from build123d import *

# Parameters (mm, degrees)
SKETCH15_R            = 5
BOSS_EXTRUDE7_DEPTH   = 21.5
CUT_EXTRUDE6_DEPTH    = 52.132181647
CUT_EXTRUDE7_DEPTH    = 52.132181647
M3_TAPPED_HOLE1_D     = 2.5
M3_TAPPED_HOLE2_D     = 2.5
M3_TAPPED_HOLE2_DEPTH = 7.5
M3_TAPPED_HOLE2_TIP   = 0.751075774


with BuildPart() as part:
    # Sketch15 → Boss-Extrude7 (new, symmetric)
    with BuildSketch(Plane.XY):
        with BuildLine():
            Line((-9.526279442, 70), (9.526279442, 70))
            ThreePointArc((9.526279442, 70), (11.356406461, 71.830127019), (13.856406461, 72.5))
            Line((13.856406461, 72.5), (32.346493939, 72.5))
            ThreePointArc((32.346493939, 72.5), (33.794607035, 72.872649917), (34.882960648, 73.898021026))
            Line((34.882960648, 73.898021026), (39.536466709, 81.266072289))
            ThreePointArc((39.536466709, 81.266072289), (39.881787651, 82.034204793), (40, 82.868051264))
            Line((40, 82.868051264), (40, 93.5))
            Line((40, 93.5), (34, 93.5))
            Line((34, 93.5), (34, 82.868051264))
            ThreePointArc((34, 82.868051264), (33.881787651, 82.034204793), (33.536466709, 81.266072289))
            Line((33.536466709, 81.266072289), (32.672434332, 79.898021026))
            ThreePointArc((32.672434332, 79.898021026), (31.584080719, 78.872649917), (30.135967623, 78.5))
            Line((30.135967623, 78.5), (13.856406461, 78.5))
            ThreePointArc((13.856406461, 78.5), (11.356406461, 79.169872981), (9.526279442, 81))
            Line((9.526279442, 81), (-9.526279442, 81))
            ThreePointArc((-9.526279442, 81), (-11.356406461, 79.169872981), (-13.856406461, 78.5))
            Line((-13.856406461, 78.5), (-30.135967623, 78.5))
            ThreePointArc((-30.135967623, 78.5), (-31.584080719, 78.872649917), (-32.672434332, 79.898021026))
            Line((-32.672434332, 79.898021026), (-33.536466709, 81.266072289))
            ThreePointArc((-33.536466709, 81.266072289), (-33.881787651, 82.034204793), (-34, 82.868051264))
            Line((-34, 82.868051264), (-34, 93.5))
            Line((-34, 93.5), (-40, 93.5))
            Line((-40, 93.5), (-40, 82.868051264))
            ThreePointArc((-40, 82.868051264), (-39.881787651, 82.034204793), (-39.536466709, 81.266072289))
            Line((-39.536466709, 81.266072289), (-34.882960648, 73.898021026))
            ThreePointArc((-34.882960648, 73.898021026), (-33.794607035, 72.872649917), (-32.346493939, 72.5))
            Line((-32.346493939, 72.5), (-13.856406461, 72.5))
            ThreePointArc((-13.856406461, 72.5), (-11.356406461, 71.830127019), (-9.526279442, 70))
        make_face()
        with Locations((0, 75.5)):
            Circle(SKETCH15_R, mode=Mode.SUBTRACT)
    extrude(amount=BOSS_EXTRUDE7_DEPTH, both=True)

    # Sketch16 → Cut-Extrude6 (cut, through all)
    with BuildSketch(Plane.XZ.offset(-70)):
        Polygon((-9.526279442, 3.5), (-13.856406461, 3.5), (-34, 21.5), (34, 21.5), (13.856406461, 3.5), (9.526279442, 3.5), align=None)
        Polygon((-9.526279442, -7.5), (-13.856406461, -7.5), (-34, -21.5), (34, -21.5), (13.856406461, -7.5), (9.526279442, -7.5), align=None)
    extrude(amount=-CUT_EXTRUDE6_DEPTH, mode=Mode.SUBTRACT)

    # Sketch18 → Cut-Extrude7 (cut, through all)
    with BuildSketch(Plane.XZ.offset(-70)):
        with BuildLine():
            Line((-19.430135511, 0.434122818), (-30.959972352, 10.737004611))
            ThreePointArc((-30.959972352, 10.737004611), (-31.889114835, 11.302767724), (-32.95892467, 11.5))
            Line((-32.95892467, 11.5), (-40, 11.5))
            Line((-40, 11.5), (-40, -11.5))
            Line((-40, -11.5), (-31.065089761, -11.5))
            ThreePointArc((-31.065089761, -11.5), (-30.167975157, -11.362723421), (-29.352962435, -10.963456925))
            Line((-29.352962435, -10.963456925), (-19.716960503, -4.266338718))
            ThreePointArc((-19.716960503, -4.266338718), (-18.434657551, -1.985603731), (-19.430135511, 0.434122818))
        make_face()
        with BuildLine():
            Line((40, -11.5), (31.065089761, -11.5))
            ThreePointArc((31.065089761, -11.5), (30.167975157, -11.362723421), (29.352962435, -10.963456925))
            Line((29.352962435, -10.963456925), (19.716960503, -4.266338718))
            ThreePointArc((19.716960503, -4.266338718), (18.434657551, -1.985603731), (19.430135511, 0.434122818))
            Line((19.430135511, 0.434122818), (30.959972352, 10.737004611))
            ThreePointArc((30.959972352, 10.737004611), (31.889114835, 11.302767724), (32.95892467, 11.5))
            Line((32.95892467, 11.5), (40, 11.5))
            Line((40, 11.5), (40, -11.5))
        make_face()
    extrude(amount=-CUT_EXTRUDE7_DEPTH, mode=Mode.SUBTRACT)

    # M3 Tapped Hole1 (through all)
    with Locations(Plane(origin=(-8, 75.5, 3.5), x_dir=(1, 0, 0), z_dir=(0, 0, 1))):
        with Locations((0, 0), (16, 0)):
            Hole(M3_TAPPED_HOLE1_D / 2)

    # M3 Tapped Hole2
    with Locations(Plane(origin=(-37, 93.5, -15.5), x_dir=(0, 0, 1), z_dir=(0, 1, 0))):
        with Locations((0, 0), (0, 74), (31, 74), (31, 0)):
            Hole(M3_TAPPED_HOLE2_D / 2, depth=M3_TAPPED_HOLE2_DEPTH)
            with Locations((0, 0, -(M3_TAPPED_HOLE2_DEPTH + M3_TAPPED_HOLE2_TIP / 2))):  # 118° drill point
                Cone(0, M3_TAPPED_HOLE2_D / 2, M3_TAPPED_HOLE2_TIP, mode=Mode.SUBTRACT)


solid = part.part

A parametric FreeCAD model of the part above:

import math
import FreeCAD as App
import Part
import Sketcher
Q = App.Units.Quantity

doc = App.newDocument("Part")
params = doc.addObject("Spreadsheet::Sheet", "Params")
for row, (alias, value) in enumerate([
    ("sketch1_diameter", "10 mm"),
    ("sketch1_radius", "3 mm"),
    ("sketch1_width", "6 mm"),
    ("pad1_length", "43 mm"),
    ("sketch2_width", "68 mm"),
    ("sketch3_radius", "3 mm"),
    ("sketch3_height", "23 mm"),
    ("sketch4_diameter", "2.5 mm"),
    ("hole_diameter", "2.5 mm"),
    ("sketch5_diameter", "2.5 mm"),
    ("hole2_diameter", "2.5 mm"),
    ("hole2_depth", "7.5 mm"),
], start=1):
    params.set(f"A{row}", alias)
    params.set(f"B{row}", "=" + value)
    params.setAlias(f"B{row}", alias)

body = doc.addObject("PartDesign::Body", "Body")

# Sketch on XY plane
sketch1 = doc.addObject("Sketcher::SketchObject", "Sketch")
body.addObject(sketch1)
sketch1.AttachmentSupport = (doc.XY_Plane, [""])
sketch1.MapMode = "FlatFace"
sketch1.addGeometry([
    Part.LineSegment(App.Vector(-9.526279, 70, 0), App.Vector(9.526279, 70, 0)),  # 0
    Part.ArcOfCircle(Part.Circle(App.Vector(13.856406, 67.5, 0), App.Vector(0, 0, 1), 5), math.radians(90), math.radians(150)),  # 1
    Part.LineSegment(App.Vector(13.856406, 72.5, 0), App.Vector(32.346494, 72.5, 0)),  # 2
    Part.ArcOfCircle(Part.Circle(App.Vector(32.346494, 75.5, 0), App.Vector(0, 0, 1), 3), math.radians(-90), math.radians(-32.275644)),  # 3
    Part.LineSegment(App.Vector(34.882961, 73.898021, 0), App.Vector(39.536467, 81.266072, 0)),  # 4
    Part.ArcOfCircle(Part.Circle(App.Vector(37, 82.868051, 0), App.Vector(0, 0, 1), 3), math.radians(-32.275644), math.radians(0)),  # 5
    Part.LineSegment(App.Vector(40, 82.868051, 0), App.Vector(40, 93.5, 0)),  # 6
    Part.LineSegment(App.Vector(40, 93.5, 0), App.Vector(34, 93.5, 0)),  # 7
    Part.LineSegment(App.Vector(34, 93.5, 0), App.Vector(34, 82.868051, 0)),  # 8
    Part.ArcOfCircle(Part.Circle(App.Vector(31, 82.868051, 0), App.Vector(0, 0, 1), 3), math.radians(-32.275644), math.radians(0)),  # 9
    Part.LineSegment(App.Vector(33.536467, 81.266072, 0), App.Vector(32.672434, 79.898021, 0)),  # 10
    Part.ArcOfCircle(Part.Circle(App.Vector(30.135968, 81.5, 0), App.Vector(0, 0, 1), 3), math.radians(-90), math.radians(-32.275644)),  # 11
    Part.LineSegment(App.Vector(30.135968, 78.5, 0), App.Vector(13.856406, 78.5, 0)),  # 12
    Part.ArcOfCircle(Part.Circle(App.Vector(13.856406, 83.5, 0), App.Vector(0, 0, 1), 5), math.radians(-150), math.radians(-90)),  # 13
    Part.LineSegment(App.Vector(9.526279, 81, 0), App.Vector(-9.526279, 81, 0)),  # 14
    Part.ArcOfCircle(Part.Circle(App.Vector(-13.856406, 83.5, 0), App.Vector(0, 0, 1), 5), math.radians(-90), math.radians(-30)),  # 15
    Part.LineSegment(App.Vector(-13.856406, 78.5, 0), App.Vector(-30.135968, 78.5, 0)),  # 16
    Part.ArcOfCircle(Part.Circle(App.Vector(-30.135968, 81.5, 0), App.Vector(0, 0, 1), 3), math.radians(-147.724356), math.radians(-90)),  # 17
    Part.LineSegment(App.Vector(-32.672434, 79.898021, 0), App.Vector(-33.536467, 81.266072, 0)),  # 18
    Part.ArcOfCircle(Part.Circle(App.Vector(-31, 82.868051, 0), App.Vector(0, 0, 1), 3), math.radians(180), math.radians(212.275644)),  # 19
    Part.LineSegment(App.Vector(-34, 82.868051, 0), App.Vector(-34, 93.5, 0)),  # 20
    Part.LineSegment(App.Vector(-34, 93.5, 0), App.Vector(-40, 93.5, 0)),  # 21
    Part.LineSegment(App.Vector(-40, 93.5, 0), App.Vector(-40, 82.868051, 0)),  # 22
    Part.ArcOfCircle(Part.Circle(App.Vector(-37, 82.868051, 0), App.Vector(0, 0, 1), 3), math.radians(180), math.radians(212.275644)),  # 23
    Part.LineSegment(App.Vector(-39.536467, 81.266072, 0), App.Vector(-34.882961, 73.898021, 0)),  # 24
    Part.ArcOfCircle(Part.Circle(App.Vector(-32.346494, 75.5, 0), App.Vector(0, 0, 1), 3), math.radians(-147.724356), math.radians(-90)),  # 25
    Part.LineSegment(App.Vector(-32.346494, 72.5, 0), App.Vector(-13.856406, 72.5, 0)),  # 26
    Part.ArcOfCircle(Part.Circle(App.Vector(-13.856406, 67.5, 0), App.Vector(0, 0, 1), 5), math.radians(30), math.radians(90)),  # 27
    Part.Circle(App.Vector(0, 75.5, 0), App.Vector(0, 0, 1), 5),  # 28
], False)
sketch1.addConstraint([
    Sketcher.Constraint("Coincident", 0, 2, 1, 2),
    Sketcher.Constraint("Tangent", 1, 1, 2, 1),
    Sketcher.Constraint("Tangent", 2, 2, 3, 1),
    Sketcher.Constraint("Tangent", 3, 2, 4, 1),
    Sketcher.Constraint("Tangent", 4, 2, 5, 1),
    Sketcher.Constraint("Tangent", 5, 2, 6, 1),
    Sketcher.Constraint("Coincident", 6, 2, 7, 1),
    Sketcher.Constraint("Coincident", 7, 2, 8, 1),
    Sketcher.Constraint("Tangent", 8, 2, 9, 2),
    Sketcher.Constraint("Tangent", 9, 1, 10, 1),
    Sketcher.Constraint("Tangent", 10, 2, 11, 2),
    Sketcher.Constraint("Tangent", 11, 1, 12, 1),
    Sketcher.Constraint("Tangent", 12, 2, 13, 2),
    Sketcher.Constraint("Coincident", 13, 1, 14, 1),
    Sketcher.Constraint("Coincident", 14, 2, 15, 2),
    Sketcher.Constraint("Tangent", 15, 1, 16, 1),
    Sketcher.Constraint("Tangent", 16, 2, 17, 2),
    Sketcher.Constraint("Tangent", 17, 1, 18, 1),
    Sketcher.Constraint("Tangent", 18, 2, 19, 2),
    Sketcher.Constraint("Tangent", 19, 1, 20, 1),
    Sketcher.Constraint("Coincident", 20, 2, 21, 1),
    Sketcher.Constraint("Coincident", 21, 2, 22, 1),
    Sketcher.Constraint("Tangent", 22, 2, 23, 1),
    Sketcher.Constraint("Tangent", 23, 2, 24, 1),
    Sketcher.Constraint("Tangent", 24, 2, 25, 1),
    Sketcher.Constraint("Tangent", 25, 2, 26, 1),
    Sketcher.Constraint("Tangent", 26, 2, 27, 2),
    Sketcher.Constraint("Coincident", 27, 1, 0, 1),
    Sketcher.Constraint("Horizontal", 0),
    Sketcher.Constraint("Horizontal", 2),
    Sketcher.Constraint("Vertical", 6),
    Sketcher.Constraint("Horizontal", 7),
    Sketcher.Constraint("Vertical", 8),
    Sketcher.Constraint("Horizontal", 12),
    Sketcher.Constraint("Horizontal", 14),
    Sketcher.Constraint("Horizontal", 16),
    Sketcher.Constraint("Vertical", 20),
    Sketcher.Constraint("Horizontal", 21),
    Sketcher.Constraint("Vertical", 22),
    Sketcher.Constraint("Horizontal", 26),
    Sketcher.Constraint("Equal", 3, 5),
    Sketcher.Constraint("Equal", 5, 9),
    Sketcher.Constraint("Equal", 9, 11),
    Sketcher.Constraint("Equal", 1, 13),
    Sketcher.Constraint("Equal", 13, 15),
    Sketcher.Constraint("Equal", 11, 17),
    Sketcher.Constraint("Equal", 17, 19),
    Sketcher.Constraint("Equal", 19, 23),
    Sketcher.Constraint("Equal", 23, 25),
    Sketcher.Constraint("Equal", 15, 27),
    Sketcher.Constraint("Equal", 27, 28),
    Sketcher.Constraint("Symmetric", 13, 3, 15, 3, -2),
    Sketcher.Constraint("Symmetric", 9, 3, 19, 3, -2),
    Sketcher.Constraint("Symmetric", 5, 3, 23, 3, -2),
    Sketcher.Constraint("Symmetric", 3, 3, 25, 3, -2),
    Sketcher.Constraint("PointOnObject", 28, 3, -2),
    Sketcher.Constraint("Parallel", 4, 10),
    Sketcher.Constraint("Parallel", 18, 24),
    Sketcher.Constraint("Horizontal", 5, 3, 9, 3),
    Sketcher.Constraint("Horizontal", 25, 3, 28, 3),
    Sketcher.Constraint("Horizontal", 7, 2, 20, 2),
    Sketcher.Constraint("Vertical", 1, 3, 13, 3),
    Sketcher.Constraint("Vertical", 15, 3, 27, 3),
    Sketcher.Constraint("Vertical", 0, 2, 13, 1),
    Sketcher.Constraint("Diameter", 28, Q("10 mm")),
    Sketcher.Constraint("Radius", 3, Q("3 mm")),
    Sketcher.Constraint("DistanceX", 7, 2, 7, 1, Q("6 mm")),
    Sketcher.Constraint("DistanceX", -1, 1, 5, 3, Q("37 mm")),
    Sketcher.Constraint("DistanceY", -1, 1, 0, 2, Q("70 mm")),
    Sketcher.Constraint("DistanceY", -1, 1, 13, 1, Q("81 mm")),
    Sketcher.Constraint("DistanceY", 3, 3, 11, 3, Q("6 mm")),
    Sketcher.Constraint("DistanceY", 11, 3, 6, 2, Q("12 mm")),
    Sketcher.Constraint("DistanceX", 0, 1, 0, 2, Q("19.052559 mm")),
    Sketcher.Constraint("DistanceX", 12, 2, 12, 1, Q("16.279561 mm")),
    Sketcher.Constraint("DistanceY", 6, 1, 6, 2, Q("10.631949 mm")),
])
sketch1.setExpression("Constraints[64]", "Params.sketch1_diameter")
sketch1.setExpression("Constraints[65]", "Params.sketch1_radius")
sketch1.setExpression("Constraints[66]", "Params.sketch1_width")
pad1 = doc.addObject("PartDesign::Pad", "Pad")
body.addObject(pad1)
pad1.Profile = sketch1
pad1.setExpression("Length", "Params.pad1_length")
pad1.Midplane = True

# Sketch on XZ plane
sketch2 = doc.addObject("Sketcher::SketchObject", "Sketch001")
body.addObject(sketch2)
sketch2.AttachmentSupport = (doc.XZ_Plane, [""])
sketch2.MapMode = "FlatFace"
sketch2.AttachmentOffset = App.Placement(App.Vector(0, 0, -70), App.Rotation())
sketch2.addGeometry([
    Part.LineSegment(App.Vector(-13.856406, 3.5, 0), App.Vector(13.856406, 3.5, 0)),  # 0
    Part.LineSegment(App.Vector(13.856406, 3.5, 0), App.Vector(34, 21.5, 0)),  # 1
    Part.LineSegment(App.Vector(34, 21.5, 0), App.Vector(-34, 21.5, 0)),  # 2
    Part.LineSegment(App.Vector(-34, 21.5, 0), App.Vector(-13.856406, 3.5, 0)),  # 3
    Part.LineSegment(App.Vector(-13.856406, -7.5, 0), App.Vector(-34, -21.5, 0)),  # 4
    Part.LineSegment(App.Vector(-34, -21.5, 0), App.Vector(34, -21.5, 0)),  # 5
    Part.LineSegment(App.Vector(34, -21.5, 0), App.Vector(13.856406, -7.5, 0)),  # 6
    Part.LineSegment(App.Vector(13.856406, -7.5, 0), App.Vector(-13.856406, -7.5, 0)),  # 7
], False)
sketch2.addConstraint([
    Sketcher.Constraint("Coincident", 0, 2, 1, 1),
    Sketcher.Constraint("Coincident", 1, 2, 2, 1),
    Sketcher.Constraint("Coincident", 2, 2, 3, 1),
    Sketcher.Constraint("Coincident", 3, 2, 0, 1),
    Sketcher.Constraint("Coincident", 4, 2, 5, 1),
    Sketcher.Constraint("Coincident", 5, 2, 6, 1),
    Sketcher.Constraint("Coincident", 6, 2, 7, 1),
    Sketcher.Constraint("Coincident", 7, 2, 4, 1),
    Sketcher.Constraint("Horizontal", 0),
    Sketcher.Constraint("Horizontal", 2),
    Sketcher.Constraint("Horizontal", 5),
    Sketcher.Constraint("Horizontal", 7),
    Sketcher.Constraint("Symmetric", 1, 2, 4, 2, -1, 1),
    Sketcher.Constraint("Vertical", 2, 2, 4, 2),
    Sketcher.Constraint("Vertical", 1, 2, 5, 2),
    Sketcher.Constraint("Vertical", 0, 2, 6, 2),
    Sketcher.Constraint("Vertical", 3, 2, 7, 2),
    Sketcher.Constraint("Equal", 1, 3),
    Sketcher.Constraint("DistanceX", 2, 2, 2, 1, Q("68 mm")),
    Sketcher.Constraint("DistanceY", 0, 2, 1, 2, Q("18 mm")),
    Sketcher.Constraint("DistanceY", 4, 2, 3, 2, Q("25 mm")),
    Sketcher.Constraint("DistanceY", 6, 2, 0, 2, Q("11 mm")),
    Sketcher.Constraint("Distance", 1, Q("27.014151 mm")),
])
sketch2.setExpression("Constraints[18]", "Params.sketch2_width")
pocket1 = doc.addObject("PartDesign::Pocket", "Pocket")
body.addObject(pocket1)
pocket1.Profile = sketch2
pocket1.Type = "ThroughAll"

# Sketch on XZ plane
sketch3 = doc.addObject("Sketcher::SketchObject", "Sketch002")
body.addObject(sketch3)
sketch3.AttachmentSupport = (doc.XZ_Plane, [""])
sketch3.MapMode = "FlatFace"
sketch3.AttachmentOffset = App.Placement(App.Vector(0, 0, -70), App.Rotation())
sketch3.addGeometry([
    Part.LineSegment(App.Vector(-19.430136, 0.434123, 0), App.Vector(-30.959972, 10.737005, 0)),  # 0
    Part.ArcOfCircle(Part.Circle(App.Vector(-32.958925, 8.5, 0), App.Vector(0, 0, 1), 3), math.radians(48.216525), math.radians(90)),  # 1
    Part.LineSegment(App.Vector(-32.958925, 11.5, 0), App.Vector(-40, 11.5, 0)),  # 2
    Part.LineSegment(App.Vector(-40, 11.5, 0), App.Vector(-40, -11.5, 0)),  # 3
    Part.LineSegment(App.Vector(-40, -11.5, 0), App.Vector(-31.06509, -11.5, 0)),  # 4
    Part.ArcOfCircle(Part.Circle(App.Vector(-31.06509, -8.5, 0), App.Vector(0, 0, 1), 3), math.radians(-90), math.radians(-55.200311)),  # 5
    Part.LineSegment(App.Vector(-29.352962, -10.963457, 0), App.Vector(-19.716961, -4.266339, 0)),  # 6
    Part.ArcOfCircle(Part.Circle(App.Vector(-21.429088, -1.802882, 0), App.Vector(0, 0, 1), 3), math.radians(-55.200311), math.radians(48.216525)),  # 7
    Part.LineSegment(App.Vector(31.06509, -11.5, 0), App.Vector(40, -11.5, 0)),  # 8
    Part.LineSegment(App.Vector(40, -11.5, 0), App.Vector(40, 11.5, 0)),  # 9
    Part.LineSegment(App.Vector(40, 11.5, 0), App.Vector(32.958925, 11.5, 0)),  # 10
    Part.ArcOfCircle(Part.Circle(App.Vector(32.958925, 8.5, 0), App.Vector(0, 0, 1), 3), math.radians(90), math.radians(131.783475)),  # 11
    Part.LineSegment(App.Vector(30.959972, 10.737005, 0), App.Vector(19.430136, 0.434123, 0)),  # 12
    Part.ArcOfCircle(Part.Circle(App.Vector(21.429088, -1.802882, 0), App.Vector(0, 0, 1), 3), math.radians(131.783475), math.radians(235.200311)),  # 13
    Part.LineSegment(App.Vector(19.716961, -4.266339, 0), App.Vector(29.352962, -10.963457, 0)),  # 14
    Part.ArcOfCircle(Part.Circle(App.Vector(31.06509, -8.5, 0), App.Vector(0, 0, 1), 3), math.radians(-124.799689), math.radians(-90)),  # 15
], False)
sketch3.addConstraint([
    Sketcher.Constraint("Tangent", 0, 2, 1, 1),
    Sketcher.Constraint("Tangent", 1, 2, 2, 1),
    Sketcher.Constraint("Coincident", 2, 2, 3, 1),
    Sketcher.Constraint("Coincident", 3, 2, 4, 1),
    Sketcher.Constraint("Tangent", 4, 2, 5, 1),
    Sketcher.Constraint("Tangent", 5, 2, 6, 1),
    Sketcher.Constraint("Tangent", 6, 2, 7, 1),
    Sketcher.Constraint("Tangent", 7, 2, 0, 1),
    Sketcher.Constraint("Coincident", 8, 2, 9, 1),
    Sketcher.Constraint("Coincident", 9, 2, 10, 1),
    Sketcher.Constraint("Tangent", 10, 2, 11, 1),
    Sketcher.Constraint("Tangent", 11, 2, 12, 1),
    Sketcher.Constraint("Tangent", 12, 2, 13, 1),
    Sketcher.Constraint("Tangent", 13, 2, 14, 1),
    Sketcher.Constraint("Tangent", 14, 2, 15, 1),
    Sketcher.Constraint("Tangent", 15, 2, 8, 1),
    Sketcher.Constraint("Horizontal", 2),
    Sketcher.Constraint("Vertical", 3),
    Sketcher.Constraint("Horizontal", 4),
    Sketcher.Constraint("Horizontal", 8),
    Sketcher.Constraint("Vertical", 9),
    Sketcher.Constraint("Horizontal", 10),
    Sketcher.Constraint("Equal", 1, 5),
    Sketcher.Constraint("Equal", 5, 7),
    Sketcher.Constraint("Equal", 7, 11),
    Sketcher.Constraint("Equal", 11, 13),
    Sketcher.Constraint("Equal", 13, 15),
    Sketcher.Constraint("Symmetric", 2, 2, 8, 2, -1, 1),
    Sketcher.Constraint("Symmetric", 1, 3, 11, 3, -2),
    Sketcher.Constraint("Symmetric", 7, 3, 13, 3, -2),
    Sketcher.Constraint("Symmetric", 5, 3, 15, 3, -2),
    Sketcher.Constraint("Radius", 1, Q("3 mm")),
    Sketcher.Constraint("DistanceY", 3, 2, 3, 1, Q("23 mm")),
    Sketcher.Constraint("DistanceX", 2, 2, -1, 1, Q("40 mm")),
    Sketcher.Constraint("DistanceX", 5, 3, 7, 3, Q("9.636002 mm")),
    Sketcher.Constraint("DistanceX", 4, 1, 4, 2, Q("8.93491 mm")),
    Sketcher.Constraint("Distance", 6, Q("11.734732 mm")),
    Sketcher.Constraint("DistanceX", 2, 2, 2, 1, Q("7.041075 mm")),
])
sketch3.setExpression("Constraints[31]", "Params.sketch3_radius")
sketch3.setExpression("Constraints[32]", "Params.sketch3_height")
pocket2 = doc.addObject("PartDesign::Pocket", "Pocket001")
body.addObject(pocket2)
pocket2.Profile = sketch3
pocket2.Type = "ThroughAll"

# Sketch on XY plane
sketch4 = doc.addObject("Sketcher::SketchObject", "Sketch003")
body.addObject(sketch4)
sketch4.AttachmentSupport = (doc.XY_Plane, [""])
sketch4.MapMode = "FlatFace"
sketch4.AttachmentOffset = App.Placement(App.Vector(0, 0, 3.5), App.Rotation())
sketch4.addGeometry([
    Part.Circle(App.Vector(-8, 75.5, 0), App.Vector(0, 0, 1), 1.25),
    Part.Circle(App.Vector(8, 75.5, 0), App.Vector(0, 0, 1), 1.25),
], False)
sketch4.addConstraint([
    Sketcher.Constraint("Equal", 0, 1),
    Sketcher.Constraint("Symmetric", 0, 3, 1, 3, -2),
    Sketcher.Constraint("Diameter", 0, Q("2.5 mm")),
    Sketcher.Constraint("DistanceX", 0, 3, -1, 1, Q("8 mm")),
    Sketcher.Constraint("DistanceY", -1, 1, 0, 3, Q("75.5 mm")),
])
sketch4.setExpression("Constraints[2]", "Params.sketch4_diameter")
doc.recompute()
hole = doc.addObject("PartDesign::Hole", "Hole")
body.addObject(hole)
hole.Profile = sketch4
hole.ThreadType = "None"
hole.setExpression("Diameter", "Params.hole_diameter")
hole.DepthType = "ThroughAll"

# Sketch on XZ plane
sketch5 = doc.addObject("Sketcher::SketchObject", "Sketch004")
body.addObject(sketch5)
sketch5.AttachmentSupport = (doc.XZ_Plane, [""])
sketch5.MapMode = "FlatFace"
sketch5.AttachmentOffset = App.Placement(App.Vector(0, 0, -93.5), App.Rotation())
sketch5.addGeometry([
    Part.Circle(App.Vector(-37, -15.5, 0), App.Vector(0, 0, 1), 1.25),
    Part.Circle(App.Vector(37, -15.5, 0), App.Vector(0, 0, 1), 1.25),
    Part.Circle(App.Vector(37, 15.5, 0), App.Vector(0, 0, 1), 1.25),
    Part.Circle(App.Vector(-37, 15.5, 0), App.Vector(0, 0, 1), 1.25),
], False)
sketch5.addConstraint([
    Sketcher.Constraint("Equal", 0, 1),
    Sketcher.Constraint("Equal", 1, 2),
    Sketcher.Constraint("Equal", 2, 3),
    Sketcher.Constraint("Symmetric", 0, 3, 2, 3, -1, 1),
    Sketcher.Constraint("Symmetric", 1, 3, 3, 3, -1, 1),
    Sketcher.Constraint("Symmetric", 0, 3, 1, 3, -2),
    Sketcher.Constraint("Diameter", 0, Q("2.5 mm")),
    Sketcher.Constraint("DistanceX", 0, 3, -1, 1, Q("37 mm")),
    Sketcher.Constraint("DistanceY", 1, 3, 2, 3, Q("31 mm")),
])
sketch5.setExpression("Constraints[6]", "Params.sketch5_diameter")
doc.recompute()
hole2 = doc.addObject("PartDesign::Hole", "Hole001")
body.addObject(hole2)
hole2.Profile = sketch5
hole2.ThreadType = "None"
hole2.setExpression("Diameter", "Params.hole2_diameter")
hole2.DepthType = "Dimension"
hole2.setExpression("Depth", "Params.hole2_depth")
hole2.DrillPoint = "Angled"
hole2.DrillPointAngle = 118
hole2.Reversed = True

doc.recompute()
